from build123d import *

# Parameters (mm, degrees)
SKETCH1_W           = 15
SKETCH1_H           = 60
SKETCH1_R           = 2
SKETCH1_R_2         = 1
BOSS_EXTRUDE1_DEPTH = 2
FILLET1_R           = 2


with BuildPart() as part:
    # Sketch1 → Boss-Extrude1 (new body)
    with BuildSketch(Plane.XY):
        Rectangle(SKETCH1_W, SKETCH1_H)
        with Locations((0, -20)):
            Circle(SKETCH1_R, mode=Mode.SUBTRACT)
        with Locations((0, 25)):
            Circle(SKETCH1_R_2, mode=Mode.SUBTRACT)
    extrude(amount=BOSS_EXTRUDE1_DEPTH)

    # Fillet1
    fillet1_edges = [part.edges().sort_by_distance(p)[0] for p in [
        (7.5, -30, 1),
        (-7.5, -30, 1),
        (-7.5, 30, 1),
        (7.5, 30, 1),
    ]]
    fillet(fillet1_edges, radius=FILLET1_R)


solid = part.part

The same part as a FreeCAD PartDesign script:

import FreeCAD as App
import Part
import Sketcher

V = App.Vector


def edges_at(feature, points):
    """Names of the edges that pass closest to the given points."""
    edges = feature.Shape.Edges
    near = lambda p: min(range(len(edges)), key=lambda i: edges[i].distToShape(Part.Vertex(*p))[0])
    return sorted({f"Edge{near(p) + 1}" for p in points})


def add_polygon(sketch, points):
    """Adds a closed chain of lines whose ends are joined by coincident constraints."""
    first, n = sketch.GeometryCount, len(points)
    for a, b in zip(points, points[1:] + points[:1]):
        sketch.addGeometry(Part.LineSegment(App.Vector(*a, 0), App.Vector(*b, 0)), False)
    for i in range(n):
        sketch.addConstraint(Sketcher.Constraint("Coincident", first + i, 2, first + (i + 1) % n, 1))

doc = App.newDocument("Part")
params = doc.addObject("Spreadsheet::Sheet", "Params")
for row, (alias, value) in enumerate([
    ("sketch1_diameter", "4 mm"),
    ("sketch1_diameter2", "2 mm"),
    ("sketch1_width", "15 mm"),
    ("sketch1_height", "60 mm"),
    ("pad1_length", "2 mm"),
    ("fillet_radius", "2 mm"),
], start=1):
    params.set(f"A{row}", alias)
    params.set(f"B{row}", "=" + value)
    params.setAlias(f"B{row}", alias)

body = doc.addObject("PartDesign::Body", "Body")

sketch1 = body.newObject("Sketcher::SketchObject", "Sketch")
sketch1.AttachmentSupport = (doc.getObject("XY_Plane"), [""])
sketch1.MapMode = "FlatFace"
add_polygon(sketch1, [(-7.5, 30), (-7.5, -30), (7.5, -30), (7.5, 30)])
sketch1.addGeometry(Part.Circle(V(0, -20, 0), V(0, 0, 1), 2), False)
sketch1.addGeometry(Part.Circle(V(0, 25, 0), V(0, 0, 1), 1), False)
sketch1.addConstraint([
    Sketcher.Constraint("Vertical", 0),
    Sketcher.Constraint("Horizontal", 1),
    Sketcher.Constraint("Vertical", 2),
    Sketcher.Constraint("Horizontal", 3),
    Sketcher.Constraint("Symmetric", 0, 2, 2, 2, -1, 1),
    Sketcher.Constraint("PointOnObject", 4, 3, -2),
    Sketcher.Constraint("PointOnObject", 5, 3, -2),
    Sketcher.Constraint("Diameter", 4, 4.0),
    Sketcher.Constraint("Diameter", 5, 2.0),
    Sketcher.Constraint("DistanceX", 1, 1, 1, 2, 15.0),
    Sketcher.Constraint("DistanceY", 0, 2, 0, 1, 60.0),
    Sketcher.Constraint("DistanceY", 4, 3, -1, 1, 20.0),
    Sketcher.Constraint("DistanceY", -1, 1, 5, 3, 25.0),
])
sketch1.setExpression("Constraints[11]", "Params.sketch1_diameter")
sketch1.setExpression("Constraints[12]", "Params.sketch1_diameter2")
sketch1.setExpression("Constraints[13]", "Params.sketch1_width")
sketch1.setExpression("Constraints[14]", "Params.sketch1_height")
pad1 = body.newObject("PartDesign::Pad", "Pad")
pad1.Profile = sketch1
pad1.setExpression("Length", "Params.pad1_length")
doc.recompute()

fillet = body.newObject("PartDesign::Fillet", "Fillet")
fillet.Base = (pad1, edges_at(pad1, [
    (7.5, -30, 1),
    (-7.5, -30, 1),
    (-7.5, 30, 1),
    (7.5, 30, 1),
]))
fillet.setExpression("Radius", "Params.fillet_radius")

doc.recompute()
